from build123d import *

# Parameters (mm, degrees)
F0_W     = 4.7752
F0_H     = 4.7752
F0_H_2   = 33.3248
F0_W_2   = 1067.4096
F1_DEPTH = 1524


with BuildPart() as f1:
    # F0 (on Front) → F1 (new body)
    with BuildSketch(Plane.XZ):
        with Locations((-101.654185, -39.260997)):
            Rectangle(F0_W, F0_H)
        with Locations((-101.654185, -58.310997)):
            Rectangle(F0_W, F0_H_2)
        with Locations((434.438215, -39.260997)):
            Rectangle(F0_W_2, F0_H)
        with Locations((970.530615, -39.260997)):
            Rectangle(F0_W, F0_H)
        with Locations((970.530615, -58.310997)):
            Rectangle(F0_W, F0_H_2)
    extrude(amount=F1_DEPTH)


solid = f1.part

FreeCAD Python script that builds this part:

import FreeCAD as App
import Part
import Sketcher
from FreeCAD import Vector
Q = App.Units.Quantity

doc = App.newDocument("Part")
body = doc.addObject("PartDesign::Body", "Body")

sketch1 = doc.addObject("Sketcher::SketchObject", "Sketch")
body.addObject(sketch1)
sketch1.AttachmentSupport = (doc.XZ_Plane, [""])
sketch1.MapMode = "FlatFace"
sketch1.addGeometry([
    Part.LineSegment(Vector(-104, -36.9, 0), Vector(-104, -75, 0)),
    Part.LineSegment(Vector(-104, -75, 0), Vector(-99.3, -75, 0)),
    Part.LineSegment(Vector(-99.3, -75, 0), Vector(-99.3, -41.6, 0)),
    Part.LineSegment(Vector(-99.3, -41.6, 0), Vector(968.1, -41.6, 0)),
    Part.LineSegment(Vector(968.1, -41.6, 0), Vector(968.1, -75, 0)),
    Part.LineSegment(Vector(968.1, -75, 0), Vector(972.9, -75, 0)),
    Part.LineSegment(Vector(972.9, -75, 0), Vector(972.9, -36.9, 0)),
    Part.LineSegment(Vector(972.9, -36.9, 0), Vector(-104, -36.9, 0)),
], False)
sketch1.addConstraint([
    Sketcher.Constraint("Coincident", 0, 2, 1, 1),
    Sketcher.Constraint("Coincident", 1, 2, 2, 1),
    Sketcher.Constraint("Coincident", 2, 2, 3, 1),
    Sketcher.Constraint("Coincident", 3, 2, 4, 1),
    Sketcher.Constraint("Coincident", 4, 2, 5, 1),
    Sketcher.Constraint("Coincident", 5, 2, 6, 1),
    Sketcher.Constraint("Coincident", 6, 2, 7, 1),
    Sketcher.Constraint("Coincident", 7, 2, 0, 1),
    Sketcher.Constraint("Vertical", 0),
    Sketcher.Constraint("Horizontal", 1),
    Sketcher.Constraint("Vertical", 2),
    Sketcher.Constraint("Horizontal", 3),
    Sketcher.Constraint("Vertical", 4),
    Sketcher.Constraint("Horizontal", 5),
    Sketcher.Constraint("Vertical", 6),
    Sketcher.Constraint("Horizontal", 7),
    Sketcher.Constraint("Horizontal", 1, 2, 4, 2),
    Sketcher.Constraint("Equal", 1, 5),
    Sketcher.Constraint("DistanceX", 7, 2, 7, 1, Q("42.4 in")),
    Sketcher.Constraint("DistanceY", 0, 2, 0, 1, Q("1.5 in")),
    Sketcher.Constraint("DistanceX", 1, 1, 1, 2, Q("0.188 in")),
    Sketcher.Constraint("DistanceY", 2, 1, 2, 2, Q("1.312 in")),
    Sketcher.Constraint("DistanceX", 0, 2, -1, 1, 104.041785),
    Sketcher.Constraint("DistanceY", 0, 2, -1, 1, 74.973397),
])
pad1 = doc.addObject("PartDesign::Pad", "Pad")
body.addObject(pad1)
pad1.Profile = sketch1
pad1.Length = Q("60 in")

doc.recompute()
